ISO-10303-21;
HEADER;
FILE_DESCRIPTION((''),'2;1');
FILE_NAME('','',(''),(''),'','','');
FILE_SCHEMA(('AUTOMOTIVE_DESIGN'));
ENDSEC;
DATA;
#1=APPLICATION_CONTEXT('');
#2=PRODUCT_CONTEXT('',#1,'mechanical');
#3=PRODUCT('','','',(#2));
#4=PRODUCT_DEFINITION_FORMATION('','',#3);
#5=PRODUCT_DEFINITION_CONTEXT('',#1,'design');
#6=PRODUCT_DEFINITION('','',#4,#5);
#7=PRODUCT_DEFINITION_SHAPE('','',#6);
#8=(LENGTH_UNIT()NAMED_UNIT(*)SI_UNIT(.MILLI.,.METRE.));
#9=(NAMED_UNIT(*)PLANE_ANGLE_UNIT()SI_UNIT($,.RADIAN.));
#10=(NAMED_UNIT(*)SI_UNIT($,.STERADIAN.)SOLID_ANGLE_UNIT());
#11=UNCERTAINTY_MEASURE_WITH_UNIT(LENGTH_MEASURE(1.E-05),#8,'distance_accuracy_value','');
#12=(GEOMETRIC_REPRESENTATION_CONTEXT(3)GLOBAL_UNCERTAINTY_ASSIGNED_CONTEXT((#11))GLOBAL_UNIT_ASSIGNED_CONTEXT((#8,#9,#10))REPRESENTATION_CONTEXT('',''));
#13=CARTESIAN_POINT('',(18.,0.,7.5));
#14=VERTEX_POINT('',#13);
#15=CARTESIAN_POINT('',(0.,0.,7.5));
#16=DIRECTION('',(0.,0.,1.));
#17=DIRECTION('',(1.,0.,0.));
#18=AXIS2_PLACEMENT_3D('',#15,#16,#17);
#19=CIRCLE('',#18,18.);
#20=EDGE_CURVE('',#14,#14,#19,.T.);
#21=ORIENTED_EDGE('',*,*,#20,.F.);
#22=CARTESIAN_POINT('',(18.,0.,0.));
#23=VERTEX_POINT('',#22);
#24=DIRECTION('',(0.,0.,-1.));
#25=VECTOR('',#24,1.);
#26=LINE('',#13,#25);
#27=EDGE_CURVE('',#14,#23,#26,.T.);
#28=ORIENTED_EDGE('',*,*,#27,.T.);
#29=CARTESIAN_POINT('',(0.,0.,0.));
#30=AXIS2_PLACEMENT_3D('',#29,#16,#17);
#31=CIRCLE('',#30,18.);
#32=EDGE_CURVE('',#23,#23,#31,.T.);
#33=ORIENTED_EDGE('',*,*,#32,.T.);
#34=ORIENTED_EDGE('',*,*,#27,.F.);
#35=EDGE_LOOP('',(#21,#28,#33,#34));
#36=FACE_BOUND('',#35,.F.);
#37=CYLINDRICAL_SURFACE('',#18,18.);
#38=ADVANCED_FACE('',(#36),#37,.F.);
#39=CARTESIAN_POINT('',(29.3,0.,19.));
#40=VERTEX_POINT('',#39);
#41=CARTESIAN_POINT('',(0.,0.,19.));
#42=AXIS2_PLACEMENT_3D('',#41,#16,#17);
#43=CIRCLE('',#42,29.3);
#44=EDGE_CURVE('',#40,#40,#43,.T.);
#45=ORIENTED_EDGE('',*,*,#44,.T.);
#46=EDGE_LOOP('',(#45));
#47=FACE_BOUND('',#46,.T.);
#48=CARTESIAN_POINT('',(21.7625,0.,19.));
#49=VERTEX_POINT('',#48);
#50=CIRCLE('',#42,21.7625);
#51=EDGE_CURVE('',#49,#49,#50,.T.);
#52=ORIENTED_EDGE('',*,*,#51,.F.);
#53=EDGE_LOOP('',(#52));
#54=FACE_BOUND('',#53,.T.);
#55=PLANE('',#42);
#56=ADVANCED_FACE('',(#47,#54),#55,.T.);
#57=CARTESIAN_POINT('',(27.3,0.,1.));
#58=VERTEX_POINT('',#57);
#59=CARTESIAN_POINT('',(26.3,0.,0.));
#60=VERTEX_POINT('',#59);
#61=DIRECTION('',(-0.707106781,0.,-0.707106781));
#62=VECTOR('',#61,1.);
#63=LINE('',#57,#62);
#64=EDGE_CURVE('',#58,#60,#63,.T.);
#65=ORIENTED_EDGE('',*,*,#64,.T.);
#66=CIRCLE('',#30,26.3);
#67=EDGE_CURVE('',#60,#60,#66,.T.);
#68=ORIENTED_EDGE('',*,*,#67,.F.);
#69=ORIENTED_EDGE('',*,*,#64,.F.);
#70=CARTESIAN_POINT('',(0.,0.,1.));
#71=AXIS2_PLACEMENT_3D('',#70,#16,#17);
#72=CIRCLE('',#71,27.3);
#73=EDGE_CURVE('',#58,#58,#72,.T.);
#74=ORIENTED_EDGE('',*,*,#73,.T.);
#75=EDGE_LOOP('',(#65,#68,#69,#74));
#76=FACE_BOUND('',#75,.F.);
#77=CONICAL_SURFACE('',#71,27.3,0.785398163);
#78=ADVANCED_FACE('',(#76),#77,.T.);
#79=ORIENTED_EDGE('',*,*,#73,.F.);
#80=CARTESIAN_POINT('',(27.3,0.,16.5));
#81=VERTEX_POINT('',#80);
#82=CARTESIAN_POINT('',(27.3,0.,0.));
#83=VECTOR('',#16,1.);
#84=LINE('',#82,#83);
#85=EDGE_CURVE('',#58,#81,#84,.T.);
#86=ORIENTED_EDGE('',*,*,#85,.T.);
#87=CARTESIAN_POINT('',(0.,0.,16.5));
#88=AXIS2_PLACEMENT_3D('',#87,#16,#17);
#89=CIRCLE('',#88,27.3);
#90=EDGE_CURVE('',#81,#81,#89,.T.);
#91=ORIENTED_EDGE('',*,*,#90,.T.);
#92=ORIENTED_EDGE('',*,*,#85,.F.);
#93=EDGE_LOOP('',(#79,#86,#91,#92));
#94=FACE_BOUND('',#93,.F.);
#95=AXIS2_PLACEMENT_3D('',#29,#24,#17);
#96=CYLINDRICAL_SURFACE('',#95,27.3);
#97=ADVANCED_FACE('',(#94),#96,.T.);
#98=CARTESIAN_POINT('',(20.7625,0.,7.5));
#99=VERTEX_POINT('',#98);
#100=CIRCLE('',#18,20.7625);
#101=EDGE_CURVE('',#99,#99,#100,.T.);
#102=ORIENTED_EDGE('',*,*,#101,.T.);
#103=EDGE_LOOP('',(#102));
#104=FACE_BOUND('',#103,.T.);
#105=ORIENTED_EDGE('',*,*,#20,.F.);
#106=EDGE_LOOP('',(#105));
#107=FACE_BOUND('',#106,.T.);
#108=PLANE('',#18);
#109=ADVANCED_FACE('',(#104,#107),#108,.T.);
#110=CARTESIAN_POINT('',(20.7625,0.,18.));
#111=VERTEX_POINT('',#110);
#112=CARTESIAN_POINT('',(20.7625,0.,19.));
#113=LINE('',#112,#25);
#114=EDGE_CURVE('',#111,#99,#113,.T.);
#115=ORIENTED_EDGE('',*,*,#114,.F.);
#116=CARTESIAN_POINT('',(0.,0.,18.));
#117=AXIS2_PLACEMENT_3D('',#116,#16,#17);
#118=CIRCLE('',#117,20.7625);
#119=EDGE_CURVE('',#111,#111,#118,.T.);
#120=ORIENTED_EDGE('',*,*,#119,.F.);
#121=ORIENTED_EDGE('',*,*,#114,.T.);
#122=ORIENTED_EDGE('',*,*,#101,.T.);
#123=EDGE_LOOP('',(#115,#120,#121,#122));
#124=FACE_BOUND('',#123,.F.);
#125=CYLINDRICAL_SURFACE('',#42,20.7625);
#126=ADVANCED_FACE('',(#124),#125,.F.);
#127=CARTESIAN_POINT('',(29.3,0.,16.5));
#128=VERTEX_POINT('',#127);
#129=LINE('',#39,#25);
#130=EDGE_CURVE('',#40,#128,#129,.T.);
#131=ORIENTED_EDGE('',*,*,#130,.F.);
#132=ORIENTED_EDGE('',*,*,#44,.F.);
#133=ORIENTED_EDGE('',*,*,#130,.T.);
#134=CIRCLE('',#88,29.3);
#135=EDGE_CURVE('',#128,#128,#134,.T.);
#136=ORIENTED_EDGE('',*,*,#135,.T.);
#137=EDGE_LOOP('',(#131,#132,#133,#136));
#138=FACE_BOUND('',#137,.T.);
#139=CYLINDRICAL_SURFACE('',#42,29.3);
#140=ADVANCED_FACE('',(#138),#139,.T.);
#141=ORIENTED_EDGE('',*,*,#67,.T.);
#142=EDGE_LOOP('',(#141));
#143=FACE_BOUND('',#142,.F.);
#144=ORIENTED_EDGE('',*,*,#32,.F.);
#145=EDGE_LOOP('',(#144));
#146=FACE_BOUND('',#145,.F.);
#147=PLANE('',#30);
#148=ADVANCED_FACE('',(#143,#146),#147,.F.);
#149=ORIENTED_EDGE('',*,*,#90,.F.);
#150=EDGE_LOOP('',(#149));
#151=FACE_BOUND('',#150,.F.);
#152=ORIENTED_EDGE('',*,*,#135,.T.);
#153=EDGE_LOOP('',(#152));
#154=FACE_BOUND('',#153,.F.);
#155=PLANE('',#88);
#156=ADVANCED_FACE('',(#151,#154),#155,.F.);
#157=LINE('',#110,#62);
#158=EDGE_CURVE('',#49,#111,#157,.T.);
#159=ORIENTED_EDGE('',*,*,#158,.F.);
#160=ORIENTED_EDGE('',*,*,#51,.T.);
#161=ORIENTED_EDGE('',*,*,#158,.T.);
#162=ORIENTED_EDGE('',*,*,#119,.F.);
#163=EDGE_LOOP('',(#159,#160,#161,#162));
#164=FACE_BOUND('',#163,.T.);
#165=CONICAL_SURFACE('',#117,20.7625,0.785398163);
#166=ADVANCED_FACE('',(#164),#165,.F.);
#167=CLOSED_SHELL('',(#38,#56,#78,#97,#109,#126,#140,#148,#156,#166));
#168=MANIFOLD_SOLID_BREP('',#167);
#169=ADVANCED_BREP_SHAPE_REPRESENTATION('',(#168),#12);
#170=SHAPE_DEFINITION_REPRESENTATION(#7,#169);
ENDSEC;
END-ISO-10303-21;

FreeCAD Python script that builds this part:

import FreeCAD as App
import Part
import Sketcher


def edges_at(feature, points):
    """Names of the edges that pass closest to the given points."""
    edges = feature.Shape.Edges
    near = lambda p: min(range(len(edges)), key=lambda i: edges[i].distToShape(Part.Vertex(*p))[0])
    return sorted({f"Edge{near(p) + 1}" for p in points})

doc = App.newDocument("Part")
params = doc.addObject("Spreadsheet::Sheet", "Params")
for row, (alias, value) in enumerate([
    ("sketch1_diameter", "54.6 mm"),
    ("pad1_length", "19 mm"),
    ("pocket1_length", "11.5 mm"),
    ("sketch3_diameter", "36 mm"),
    ("sketch4_diameter", "58.6 mm"),
    ("sketch4_diameter2", "54.6 mm"),
    ("pad2_length", "2.5 mm"),
    ("chamfer_size", "1 mm"),
], start=1):
    params.set(f"A{row}", alias)
    params.set(f"B{row}", "=" + value)
    params.setAlias(f"B{row}", alias)

body = doc.addObject("PartDesign::Body", "Body")

sketch1 = body.newObject("Sketcher::SketchObject", "Sketch")
sketch1.AttachmentSupport = (doc.getObject("XY_Plane"), [""])
sketch1.MapMode = "FlatFace"
sketch1.addGeometry(Part.Circle(App.Vector(0, 0, 0), App.Vector(0, 0, 1), 27), False)
sketch1.addConstraint([
    Sketcher.Constraint("Coincident", 0, 3, -1, 1),
    Sketcher.Constraint("Diameter", 0, 54.6),
])
sketch1.setExpression("Constraints[1]", "Params.sketch1_diameter")
pad1 = body.newObject("PartDesign::Pad", "Pad")
pad1.Profile = sketch1
pad1.setExpression("Length", "Params.pad1_length")

sketch2 = body.newObject("Sketcher::SketchObject", "Sketch001")
sketch2.AttachmentSupport = (doc.getObject("XY_Plane"), [""])
sketch2.MapMode = "FlatFace"
sketch2.AttachmentOffset = App.Placement(App.Vector(0, 0, 19), App.Rotation())
sketch2.addGeometry(Part.Circle(App.Vector(0, 0, 0), App.Vector(0, 0, 1), 21), False)
sketch2.addConstraint([
    Sketcher.Constraint("Coincident", 0, 3, -1, 1),
    Sketcher.Constraint("Diameter", 0, 41.525),
])
pocket1 = body.newObject("PartDesign::Pocket", "Pocket")
pocket1.Profile = sketch2
pocket1.setExpression("Length", "Params.pocket1_length")

sketch3 = body.newObject("Sketcher::SketchObject", "Sketch002")
sketch3.AttachmentSupport = (doc.getObject("XY_Plane"), [""])
sketch3.MapMode = "FlatFace"
sketch3.AttachmentOffset = App.Placement(App.Vector(0, 0, 7.5), App.Rotation())
sketch3.addGeometry(Part.Circle(App.Vector(0, 0, 0), App.Vector(0, 0, 1), 18), False)
sketch3.addConstraint([
    Sketcher.Constraint("Coincident", 0, 3, -1, 1),
    Sketcher.Constraint("Diameter", 0, 36.0),
])
sketch3.setExpression("Constraints[1]", "Params.sketch3_diameter")
pocket2 = body.newObject("PartDesign::Pocket", "Pocket001")
pocket2.Profile = sketch3
pocket2.Type = "ThroughAll"

sketch4 = body.newObject("Sketcher::SketchObject", "Sketch003")
sketch4.AttachmentSupport = (doc.getObject("XY_Plane"), [""])
sketch4.MapMode = "FlatFace"
sketch4.AttachmentOffset = App.Placement(App.Vector(0, 0, 19), App.Rotation())
sketch4.addGeometry([
    Part.Circle(App.Vector(0, 0, 0), App.Vector(0, 0, 1), 29),
    Part.Circle(App.Vector(0, 0, 0), App.Vector(0, 0, 1), 27),
], False)
sketch4.addConstraint([
    Sketcher.Constraint("Coincident", 0, 3, -1, 1),
    Sketcher.Constraint("Coincident", 1, 3, -1, 1),
    Sketcher.Constraint("Diameter", 0, 58.6),
    Sketcher.Constraint("Diameter", 1, 54.6),
])
sketch4.setExpression("Constraints[2]", "Params.sketch4_diameter")
sketch4.setExpression("Constraints[3]", "Params.sketch4_diameter2")
pad2 = body.newObject("PartDesign::Pad", "Pad001")
pad2.Profile = sketch4
pad2.setExpression("Length", "Params.pad2_length")
pad2.Reversed = True
doc.recompute()

chamfer = body.newObject("PartDesign::Chamfer", "Chamfer")
chamfer.Base = (pad2, edges_at(pad2, [(-27.3, 0, 0), (-20.762, 0, 19)]))
chamfer.setExpression("Size", "Params.chamfer_size")

doc.recompute()
